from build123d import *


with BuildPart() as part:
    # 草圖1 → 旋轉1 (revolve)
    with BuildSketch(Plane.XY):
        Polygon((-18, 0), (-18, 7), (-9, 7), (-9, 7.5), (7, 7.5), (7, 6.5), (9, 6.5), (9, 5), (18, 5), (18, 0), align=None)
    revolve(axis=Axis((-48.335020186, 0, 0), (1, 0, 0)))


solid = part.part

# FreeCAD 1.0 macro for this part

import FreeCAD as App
import Part
import Sketcher
from FreeCAD import Vector

doc = App.newDocument("Part")
body = doc.addObject("PartDesign::Body", "Body")

sketch1 = body.newObject("Sketcher::SketchObject", "Sketch")
sketch1.AttachmentSupport = (doc.getObject("XY_Plane"), [""])
sketch1.MapMode = "FlatFace"
sketch1.addGeometry([
    Part.LineSegment(Vector(-18, 7, 0), Vector(-18, 0, 0)),
    Part.LineSegment(Vector(-18, 0, 0), Vector(18, 0, 0)),
    Part.LineSegment(Vector(18, 0, 0), Vector(18, 5, 0)),
    Part.LineSegment(Vector(18, 5, 0), Vector(9, 5, 0)),
    Part.LineSegment(Vector(9, 5, 0), Vector(9, 6.5, 0)),
    Part.LineSegment(Vector(9, 6.5, 0), Vector(7, 6.5, 0)),
    Part.LineSegment(Vector(7, 6.5, 0), Vector(7, 7.5, 0)),
    Part.LineSegment(Vector(7, 7.5, 0), Vector(-9, 7.5, 0)),
    Part.LineSegment(Vector(-9, 7.5, 0), Vector(-9, 7, 0)),
    Part.LineSegment(Vector(-9, 7, 0), Vector(-18, 7, 0)),
], False)
sketch1.addConstraint([
    Sketcher.Constraint("Coincident", 0, 2, 1, 1),
    Sketcher.Constraint("Coincident", 1, 2, 2, 1),
    Sketcher.Constraint("Coincident", 2, 2, 3, 1),
    Sketcher.Constraint("Coincident", 3, 2, 4, 1),
    Sketcher.Constraint("Coincident", 4, 2, 5, 1),
    Sketcher.Constraint("Coincident", 5, 2, 6, 1),
    Sketcher.Constraint("Coincident", 6, 2, 7, 1),
    Sketcher.Constraint("Coincident", 7, 2, 8, 1),
    Sketcher.Constraint("Coincident", 8, 2, 9, 1),
    Sketcher.Constraint("Coincident", 9, 2, 0, 1),
    Sketcher.Constraint("Vertical", 0),
    Sketcher.Constraint("Horizontal", 1),
    Sketcher.Constraint("Vertical", 2),
    Sketcher.Constraint("Horizontal", 3),
    Sketcher.Constraint("Vertical", 4),
    Sketcher.Constraint("Horizontal", 5),
    Sketcher.Constraint("Vertical", 6),
    Sketcher.Constraint("Horizontal", 7),
    Sketcher.Constraint("Vertical", 8),
    Sketcher.Constraint("Horizontal", 9),
    Sketcher.Constraint("Symmetric", 0, 2, 1, 2, -1, 1),
    Sketcher.Constraint("Equal", 3, 9),
    Sketcher.Constraint("DistanceX", 1, 1, 1, 2, 36.0),
    Sketcher.Constraint("DistanceX", 3, 2, 3, 1, 9.0),
    Sketcher.Constraint("DistanceX", 5, 2, 5, 1, 2.0),
    Sketcher.Constraint("DistanceY", 0, 2, 0, 1, 7.0),
    Sketcher.Constraint("DistanceY", 2, 1, 2, 2, 5.0),
    Sketcher.Constraint("DistanceY", 6, 1, 6, 2, 1.0),
    Sketcher.Constraint("DistanceY", 4, 1, 4, 2, 1.5),
])
revolution = body.newObject("PartDesign::Revolution", "Revolution")
revolution.Profile = sketch1
revolution.ReferenceAxis = (sketch1, ["H_Axis"])
revolution.Angle = 360

doc.recompute()
